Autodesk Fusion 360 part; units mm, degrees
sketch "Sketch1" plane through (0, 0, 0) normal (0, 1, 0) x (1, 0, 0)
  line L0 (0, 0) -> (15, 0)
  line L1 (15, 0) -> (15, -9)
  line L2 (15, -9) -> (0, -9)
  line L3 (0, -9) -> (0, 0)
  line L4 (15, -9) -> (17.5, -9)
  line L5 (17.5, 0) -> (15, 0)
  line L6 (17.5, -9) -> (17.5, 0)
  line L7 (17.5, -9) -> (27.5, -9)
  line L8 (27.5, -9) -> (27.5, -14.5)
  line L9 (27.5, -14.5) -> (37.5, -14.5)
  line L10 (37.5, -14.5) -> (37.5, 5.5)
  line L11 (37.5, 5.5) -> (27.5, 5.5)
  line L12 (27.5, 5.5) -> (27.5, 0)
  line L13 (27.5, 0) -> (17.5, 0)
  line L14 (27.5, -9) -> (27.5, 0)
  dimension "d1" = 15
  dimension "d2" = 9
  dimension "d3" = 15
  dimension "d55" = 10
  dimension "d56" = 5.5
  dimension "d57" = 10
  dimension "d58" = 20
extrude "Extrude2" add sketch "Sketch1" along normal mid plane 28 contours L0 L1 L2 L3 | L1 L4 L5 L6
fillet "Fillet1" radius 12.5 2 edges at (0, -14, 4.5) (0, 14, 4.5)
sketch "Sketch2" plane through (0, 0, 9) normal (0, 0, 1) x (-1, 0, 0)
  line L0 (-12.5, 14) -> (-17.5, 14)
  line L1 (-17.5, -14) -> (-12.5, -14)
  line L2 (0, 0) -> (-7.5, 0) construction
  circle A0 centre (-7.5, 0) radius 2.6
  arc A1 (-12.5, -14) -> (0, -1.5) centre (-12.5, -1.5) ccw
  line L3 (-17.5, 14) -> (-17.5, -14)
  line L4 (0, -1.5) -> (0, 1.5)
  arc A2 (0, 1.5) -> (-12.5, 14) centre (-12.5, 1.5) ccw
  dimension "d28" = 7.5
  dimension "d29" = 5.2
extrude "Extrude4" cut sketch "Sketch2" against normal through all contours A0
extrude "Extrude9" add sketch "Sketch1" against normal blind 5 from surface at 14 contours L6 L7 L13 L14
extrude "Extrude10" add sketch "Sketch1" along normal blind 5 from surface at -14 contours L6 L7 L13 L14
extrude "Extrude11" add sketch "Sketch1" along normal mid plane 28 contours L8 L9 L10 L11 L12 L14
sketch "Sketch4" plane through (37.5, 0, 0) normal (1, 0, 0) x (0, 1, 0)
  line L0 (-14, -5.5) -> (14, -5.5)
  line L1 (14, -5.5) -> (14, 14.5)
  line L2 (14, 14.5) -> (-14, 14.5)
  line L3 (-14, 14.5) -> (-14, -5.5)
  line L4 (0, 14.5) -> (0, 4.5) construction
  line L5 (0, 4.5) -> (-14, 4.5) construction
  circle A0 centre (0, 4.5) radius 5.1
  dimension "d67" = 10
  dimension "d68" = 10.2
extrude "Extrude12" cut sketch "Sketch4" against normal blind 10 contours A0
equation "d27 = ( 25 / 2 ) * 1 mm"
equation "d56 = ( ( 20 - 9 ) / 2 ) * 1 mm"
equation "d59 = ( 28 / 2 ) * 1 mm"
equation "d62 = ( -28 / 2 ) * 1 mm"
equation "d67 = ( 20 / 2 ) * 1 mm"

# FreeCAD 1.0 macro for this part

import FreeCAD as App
import Part
import Sketcher


def edges_at(feature, points):
    """Names of the edges that pass closest to the given points."""
    edges = feature.Shape.Edges
    near = lambda p: min(range(len(edges)), key=lambda i: edges[i].distToShape(Part.Vertex(*p))[0])
    return sorted({f"Edge{near(p) + 1}" for p in points})

doc = App.newDocument("Part")
body = doc.addObject("PartDesign::Body", "Body")

sketch1 = doc.addObject("Sketcher::SketchObject", "Sketch")
body.addObject(sketch1)
sketch1.AttachmentSupport = (doc.XZ_Plane, [""])
sketch1.MapMode = "FlatFace"
sketch1.addGeometry([
    Part.LineSegment(App.Vector(0, 0, 0), App.Vector(0, 9, 0)),
    Part.LineSegment(App.Vector(0, 9, 0), App.Vector(18, 9, 0)),
    Part.LineSegment(App.Vector(18, 9, 0), App.Vector(18, 0, 0)),
    Part.LineSegment(App.Vector(18, 0, 0), App.Vector(0, 0, 0)),
], False)
sketch1.addConstraint([
    Sketcher.Constraint("Coincident", 0, 2, 1, 1),
    Sketcher.Constraint("Coincident", 1, 2, 2, 1),
    Sketcher.Constraint("Coincident", 2, 2, 3, 1),
    Sketcher.Constraint("Coincident", 3, 2, 0, 1),
    Sketcher.Constraint("Vertical", 0),
    Sketcher.Constraint("Horizontal", 1),
    Sketcher.Constraint("Vertical", 2),
    Sketcher.Constraint("Horizontal", 3),
    Sketcher.Constraint("Coincident", 3, 2, -1, 1),
    Sketcher.Constraint("DistanceY", 0, 1, 0, 2, 9.0),
    Sketcher.Constraint("DistanceX", 1, 1, 1, 2, 17.5),
])
pad1 = doc.addObject("PartDesign::Pad", "Pad")
body.addObject(pad1)
pad1.Profile = sketch1
pad1.Length = 28
pad1.Midplane = True
doc.recompute()

fillet = doc.addObject("PartDesign::Fillet", "Fillet")
body.addObject(fillet)
fillet.Base = (pad1, edges_at(pad1, [(0, -14, 4.5), (0, 14, 4.5)]))
fillet.Radius = 12.5

sketch2 = doc.addObject("Sketcher::SketchObject", "Sketch001")
body.addObject(sketch2)
sketch2.AttachmentSupport = (doc.XY_Plane, [""])
sketch2.MapMode = "FlatFace"
sketch2.AttachmentOffset = App.Placement(App.Vector(0, 0, 9), App.Rotation())
sketch2.addGeometry(Part.Circle(App.Vector(7.5, 0, 0), App.Vector(0, 0, 1), 2.6), False)
sketch2.addConstraint([
    Sketcher.Constraint("PointOnObject", 0, 3, -1),
    Sketcher.Constraint("Diameter", 0, 5.2),
    Sketcher.Constraint("DistanceX", -1, 1, 0, 3, 7.5),
])
pocket1 = doc.addObject("PartDesign::Pocket", "Pocket")
body.addObject(pocket1)
pocket1.Profile = sketch2
pocket1.Type = "ThroughAll"

sketch3 = doc.addObject("Sketcher::SketchObject", "Sketch002")
body.addObject(sketch3)
sketch3.AttachmentSupport = (doc.XZ_Plane, [""])
sketch3.MapMode = "FlatFace"
sketch3.AttachmentOffset = App.Placement(App.Vector(0, 0, -14), App.Rotation())
sketch3.addGeometry([
    Part.LineSegment(App.Vector(28, 0, 0), App.Vector(18, 0, 0)),
    Part.LineSegment(App.Vector(18, 0, 0), App.Vector(18, 9, 0)),
    Part.LineSegment(App.Vector(18, 9, 0), App.Vector(28, 9, 0)),
    Part.LineSegment(App.Vector(28, 9, 0), App.Vector(28, 0, 0)),
], False)
sketch3.addConstraint([
    Sketcher.Constraint("Coincident", 0, 2, 1, 1),
    Sketcher.Constraint("Coincident", 1, 2, 2, 1),
    Sketcher.Constraint("Coincident", 2, 2, 3, 1),
    Sketcher.Constraint("Coincident", 3, 2, 0, 1),
    Sketcher.Constraint("Horizontal", 0),
    Sketcher.Constraint("Vertical", 1),
    Sketcher.Constraint("Horizontal", 2),
    Sketcher.Constraint("Vertical", 3),
    Sketcher.Constraint("PointOnObject", 0, 2, -1),
    Sketcher.Constraint("DistanceX", 0, 2, 0, 1, 10.0),
    Sketcher.Constraint("DistanceY", 1, 1, 1, 2, 9.0),
    Sketcher.Constraint("DistanceX", -1, 1, 0, 2, 17.5),
])
pad2 = doc.addObject("PartDesign::Pad", "Pad001")
body.addObject(pad2)
pad2.Profile = sketch3
pad2.Length = 5

sketch4 = doc.addObject("Sketcher::SketchObject", "Sketch003")
body.addObject(sketch4)
sketch4.AttachmentSupport = (doc.XZ_Plane, [""])
sketch4.MapMode = "FlatFace"
sketch4.AttachmentOffset = App.Placement(App.Vector(0, 0, 14), App.Rotation())
sketch4.addGeometry([
    Part.LineSegment(App.Vector(28, 0, 0), App.Vector(18, 0, 0)),
    Part.LineSegment(App.Vector(18, 0, 0), App.Vector(18, 9, 0)),
    Part.LineSegment(App.Vector(18, 9, 0), App.Vector(28, 9, 0)),
    Part.LineSegment(App.Vector(28, 9, 0), App.Vector(28, 0, 0)),
], False)
sketch4.addConstraint([
    Sketcher.Constraint("Coincident", 0, 2, 1, 1),
    Sketcher.Constraint("Coincident", 1, 2, 2, 1),
    Sketcher.Constraint("Coincident", 2, 2, 3, 1),
    Sketcher.Constraint("Coincident", 3, 2, 0, 1),
    Sketcher.Constraint("Horizontal", 0),
    Sketcher.Constraint("Vertical", 1),
    Sketcher.Constraint("Horizontal", 2),
    Sketcher.Constraint("Vertical", 3),
    Sketcher.Constraint("PointOnObject", 0, 2, -1),
    Sketcher.Constraint("DistanceX", 0, 2, 0, 1, 10.0),
    Sketcher.Constraint("DistanceY", 1, 1, 1, 2, 9.0),
    Sketcher.Constraint("DistanceX", -1, 1, 0, 2, 17.5),
])
pad3 = doc.addObject("PartDesign::Pad", "Pad002")
body.addObject(pad3)
pad3.Profile = sketch4
pad3.Length = 5
pad3.Reversed = True

sketch5 = doc.addObject("Sketcher::SketchObject", "Sketch004")
body.addObject(sketch5)
sketch5.AttachmentSupport = (doc.XZ_Plane, [""])
sketch5.MapMode = "FlatFace"
sketch5.addGeometry([
    Part.LineSegment(App.Vector(28, -6, 0), App.Vector(28, 14, 0)),
    Part.LineSegment(App.Vector(28, 14, 0), App.Vector(38, 14, 0)),
    Part.LineSegment(App.Vector(38, 14, 0), App.Vector(38, -6, 0)),
    Part.LineSegment(App.Vector(38, -6, 0), App.Vector(28, -6, 0)),
], False)
sketch5.addConstraint([
    Sketcher.Constraint("Coincident", 0, 2, 1, 1),
    Sketcher.Constraint("Coincident", 1, 2, 2, 1),
    Sketcher.Constraint("Coincident", 2, 2, 3, 1),
    Sketcher.Constraint("Coincident", 3, 2, 0, 1),
    Sketcher.Constraint("Vertical", 0),
    Sketcher.Constraint("Horizontal", 1),
    Sketcher.Constraint("Vertical", 2),
    Sketcher.Constraint("Horizontal", 3),
    Sketcher.Constraint("DistanceX", 1, 1, 1, 2, 10.0),
    Sketcher.Constraint("DistanceY", 0, 1, 0, 2, 20.0),
    Sketcher.Constraint("DistanceY", 2, 2, -1, 1, 5.5),
    Sketcher.Constraint("DistanceX", -1, 1, 0, 2, 27.5),
])
pad4 = doc.addObject("PartDesign::Pad", "Pad003")
body.addObject(pad4)
pad4.Profile = sketch5
pad4.Length = 28
pad4.Midplane = True

sketch6 = doc.addObject("Sketcher::SketchObject", "Sketch005")
body.addObject(sketch6)
sketch6.AttachmentSupport = (doc.YZ_Plane, [""])
sketch6.MapMode = "FlatFace"
sketch6.AttachmentOffset = App.Placement(App.Vector(0, 0, 37.5), App.Rotation())
sketch6.addGeometry(Part.Circle(App.Vector(0, 4, 0), App.Vector(0, 0, 1), 5), False)
sketch6.addConstraint([
    Sketcher.Constraint("PointOnObject", 0, 3, -2),
    Sketcher.Constraint("Diameter", 0, 10.2),
    Sketcher.Constraint("DistanceY", -1, 1, 0, 3, 4.5),
])
pocket2 = doc.addObject("PartDesign::Pocket", "Pocket001")
body.addObject(pocket2)
pocket2.Profile = sketch6
pocket2.Length = 10

doc.recompute()
